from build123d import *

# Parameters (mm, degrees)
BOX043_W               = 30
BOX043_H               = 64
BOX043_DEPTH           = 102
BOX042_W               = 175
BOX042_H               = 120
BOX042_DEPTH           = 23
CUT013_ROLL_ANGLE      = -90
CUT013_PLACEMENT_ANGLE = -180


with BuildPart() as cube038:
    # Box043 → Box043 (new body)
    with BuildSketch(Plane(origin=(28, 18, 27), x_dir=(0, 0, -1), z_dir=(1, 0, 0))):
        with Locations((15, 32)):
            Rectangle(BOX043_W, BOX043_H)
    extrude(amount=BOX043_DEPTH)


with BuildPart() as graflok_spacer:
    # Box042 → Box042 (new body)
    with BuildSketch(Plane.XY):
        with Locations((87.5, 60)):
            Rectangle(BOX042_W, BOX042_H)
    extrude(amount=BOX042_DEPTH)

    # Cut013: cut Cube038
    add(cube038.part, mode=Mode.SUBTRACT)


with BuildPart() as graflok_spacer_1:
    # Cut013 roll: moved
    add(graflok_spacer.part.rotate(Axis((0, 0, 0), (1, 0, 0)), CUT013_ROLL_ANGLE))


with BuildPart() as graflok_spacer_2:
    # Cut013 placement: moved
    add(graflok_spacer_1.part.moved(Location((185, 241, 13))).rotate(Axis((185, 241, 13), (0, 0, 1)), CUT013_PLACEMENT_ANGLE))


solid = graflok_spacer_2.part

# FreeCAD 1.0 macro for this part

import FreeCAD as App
import Part
import Sketcher
from FreeCAD import Vector
Q = App.Units.Quantity

doc = App.newDocument("Part")
body = doc.addObject("PartDesign::Body", "Body")

sketch1 = body.newObject("Sketcher::SketchObject", "Sketch")
sketch1.AttachmentSupport = (doc.getObject("YZ_Plane"), [""])
sketch1.MapMode = "FlatFace"
sketch1.AttachmentOffset = App.Placement(Vector(0, 0, 28), App.Rotation())
sketch1.addGeometry([
    Part.LineSegment(Vector(82, 27, 0), Vector(18, 27, 0)),
    Part.LineSegment(Vector(18, 27, 0), Vector(18, -3, 0)),
    Part.LineSegment(Vector(18, -3, 0), Vector(82, -3, 0)),
    Part.LineSegment(Vector(82, -3, 0), Vector(82, 27, 0)),
], False)
sketch1.addConstraint([
    Sketcher.Constraint("Coincident", 0, 2, 1, 1),
    Sketcher.Constraint("Coincident", 1, 2, 2, 1),
    Sketcher.Constraint("Coincident", 2, 2, 3, 1),
    Sketcher.Constraint("Coincident", 3, 2, 0, 1),
    Sketcher.Constraint("Horizontal", 0),
    Sketcher.Constraint("Vertical", 1),
    Sketcher.Constraint("Horizontal", 2),
    Sketcher.Constraint("Vertical", 3),
    Sketcher.Constraint("DistanceX", 0, 2, 0, 1, Q("64 mm")),
    Sketcher.Constraint("DistanceY", 1, 2, 1, 1, Q("30 mm")),
    Sketcher.Constraint("DistanceX", -1, 1, 0, 2, Q("18 mm")),
    Sketcher.Constraint("DistanceY", -1, 1, 0, 2, Q("27 mm")),
])
pad1 = body.newObject("PartDesign::Pad", "Pad")
pad1.Profile = sketch1
pad1.Length = 102
body2 = doc.addObject("PartDesign::Body", "Body001")

sketch2 = body2.newObject("Sketcher::SketchObject", "Sketch001")
sketch2.AttachmentSupport = (doc.getObject("XY_Plane001"), [""])
sketch2.MapMode = "FlatFace"
sketch2.addGeometry([
    Part.LineSegment(Vector(0, 120, 0), Vector(0, 0, 0)),
    Part.LineSegment(Vector(0, 0, 0), Vector(175, 0, 0)),
    Part.LineSegment(Vector(175, 0, 0), Vector(175, 120, 0)),
    Part.LineSegment(Vector(175, 120, 0), Vector(0, 120, 0)),
], False)
sketch2.addConstraint([
    Sketcher.Constraint("Coincident", 0, 2, 1, 1),
    Sketcher.Constraint("Coincident", 1, 2, 2, 1),
    Sketcher.Constraint("Coincident", 2, 2, 3, 1),
    Sketcher.Constraint("Coincident", 3, 2, 0, 1),
    Sketcher.Constraint("Vertical", 0),
    Sketcher.Constraint("Horizontal", 1),
    Sketcher.Constraint("Vertical", 2),
    Sketcher.Constraint("Horizontal", 3),
    Sketcher.Constraint("Coincident", 0, 2, -1, 1),
    Sketcher.Constraint("DistanceX", 1, 1, 1, 2, Q("175 mm")),
    Sketcher.Constraint("DistanceY", 0, 2, 0, 1, Q("120 mm")),
])
pad2 = body2.newObject("PartDesign::Pad", "Pad001")
pad2.Profile = sketch2
pad2.Length = 23
doc.recompute()

boolean = body2.newObject("PartDesign::Boolean", "Boolean")
boolean.Type = "Cut"
boolean.addObjects([body])
body3 = doc.addObject("PartDesign::Body", "Body002")
doc.recompute()

body2.Placement = App.Placement(Vector(0, 0, 0), App.Rotation(Vector(1, 0, 0), 270))
boolean2 = body3.newObject("PartDesign::Boolean", "Boolean001")
boolean2.Type = "Fuse"
boolean2.addObjects([body2])
body4 = doc.addObject("PartDesign::Body", "Body003")
doc.recompute()

body3.Placement = App.Placement(Vector(185, 241, 13), App.Rotation(Vector(0, 0, 1), 180))
boolean3 = body4.newObject("PartDesign::Boolean", "Boolean002")
boolean3.Type = "Fuse"
boolean3.addObjects([body3])

doc.recompute()
